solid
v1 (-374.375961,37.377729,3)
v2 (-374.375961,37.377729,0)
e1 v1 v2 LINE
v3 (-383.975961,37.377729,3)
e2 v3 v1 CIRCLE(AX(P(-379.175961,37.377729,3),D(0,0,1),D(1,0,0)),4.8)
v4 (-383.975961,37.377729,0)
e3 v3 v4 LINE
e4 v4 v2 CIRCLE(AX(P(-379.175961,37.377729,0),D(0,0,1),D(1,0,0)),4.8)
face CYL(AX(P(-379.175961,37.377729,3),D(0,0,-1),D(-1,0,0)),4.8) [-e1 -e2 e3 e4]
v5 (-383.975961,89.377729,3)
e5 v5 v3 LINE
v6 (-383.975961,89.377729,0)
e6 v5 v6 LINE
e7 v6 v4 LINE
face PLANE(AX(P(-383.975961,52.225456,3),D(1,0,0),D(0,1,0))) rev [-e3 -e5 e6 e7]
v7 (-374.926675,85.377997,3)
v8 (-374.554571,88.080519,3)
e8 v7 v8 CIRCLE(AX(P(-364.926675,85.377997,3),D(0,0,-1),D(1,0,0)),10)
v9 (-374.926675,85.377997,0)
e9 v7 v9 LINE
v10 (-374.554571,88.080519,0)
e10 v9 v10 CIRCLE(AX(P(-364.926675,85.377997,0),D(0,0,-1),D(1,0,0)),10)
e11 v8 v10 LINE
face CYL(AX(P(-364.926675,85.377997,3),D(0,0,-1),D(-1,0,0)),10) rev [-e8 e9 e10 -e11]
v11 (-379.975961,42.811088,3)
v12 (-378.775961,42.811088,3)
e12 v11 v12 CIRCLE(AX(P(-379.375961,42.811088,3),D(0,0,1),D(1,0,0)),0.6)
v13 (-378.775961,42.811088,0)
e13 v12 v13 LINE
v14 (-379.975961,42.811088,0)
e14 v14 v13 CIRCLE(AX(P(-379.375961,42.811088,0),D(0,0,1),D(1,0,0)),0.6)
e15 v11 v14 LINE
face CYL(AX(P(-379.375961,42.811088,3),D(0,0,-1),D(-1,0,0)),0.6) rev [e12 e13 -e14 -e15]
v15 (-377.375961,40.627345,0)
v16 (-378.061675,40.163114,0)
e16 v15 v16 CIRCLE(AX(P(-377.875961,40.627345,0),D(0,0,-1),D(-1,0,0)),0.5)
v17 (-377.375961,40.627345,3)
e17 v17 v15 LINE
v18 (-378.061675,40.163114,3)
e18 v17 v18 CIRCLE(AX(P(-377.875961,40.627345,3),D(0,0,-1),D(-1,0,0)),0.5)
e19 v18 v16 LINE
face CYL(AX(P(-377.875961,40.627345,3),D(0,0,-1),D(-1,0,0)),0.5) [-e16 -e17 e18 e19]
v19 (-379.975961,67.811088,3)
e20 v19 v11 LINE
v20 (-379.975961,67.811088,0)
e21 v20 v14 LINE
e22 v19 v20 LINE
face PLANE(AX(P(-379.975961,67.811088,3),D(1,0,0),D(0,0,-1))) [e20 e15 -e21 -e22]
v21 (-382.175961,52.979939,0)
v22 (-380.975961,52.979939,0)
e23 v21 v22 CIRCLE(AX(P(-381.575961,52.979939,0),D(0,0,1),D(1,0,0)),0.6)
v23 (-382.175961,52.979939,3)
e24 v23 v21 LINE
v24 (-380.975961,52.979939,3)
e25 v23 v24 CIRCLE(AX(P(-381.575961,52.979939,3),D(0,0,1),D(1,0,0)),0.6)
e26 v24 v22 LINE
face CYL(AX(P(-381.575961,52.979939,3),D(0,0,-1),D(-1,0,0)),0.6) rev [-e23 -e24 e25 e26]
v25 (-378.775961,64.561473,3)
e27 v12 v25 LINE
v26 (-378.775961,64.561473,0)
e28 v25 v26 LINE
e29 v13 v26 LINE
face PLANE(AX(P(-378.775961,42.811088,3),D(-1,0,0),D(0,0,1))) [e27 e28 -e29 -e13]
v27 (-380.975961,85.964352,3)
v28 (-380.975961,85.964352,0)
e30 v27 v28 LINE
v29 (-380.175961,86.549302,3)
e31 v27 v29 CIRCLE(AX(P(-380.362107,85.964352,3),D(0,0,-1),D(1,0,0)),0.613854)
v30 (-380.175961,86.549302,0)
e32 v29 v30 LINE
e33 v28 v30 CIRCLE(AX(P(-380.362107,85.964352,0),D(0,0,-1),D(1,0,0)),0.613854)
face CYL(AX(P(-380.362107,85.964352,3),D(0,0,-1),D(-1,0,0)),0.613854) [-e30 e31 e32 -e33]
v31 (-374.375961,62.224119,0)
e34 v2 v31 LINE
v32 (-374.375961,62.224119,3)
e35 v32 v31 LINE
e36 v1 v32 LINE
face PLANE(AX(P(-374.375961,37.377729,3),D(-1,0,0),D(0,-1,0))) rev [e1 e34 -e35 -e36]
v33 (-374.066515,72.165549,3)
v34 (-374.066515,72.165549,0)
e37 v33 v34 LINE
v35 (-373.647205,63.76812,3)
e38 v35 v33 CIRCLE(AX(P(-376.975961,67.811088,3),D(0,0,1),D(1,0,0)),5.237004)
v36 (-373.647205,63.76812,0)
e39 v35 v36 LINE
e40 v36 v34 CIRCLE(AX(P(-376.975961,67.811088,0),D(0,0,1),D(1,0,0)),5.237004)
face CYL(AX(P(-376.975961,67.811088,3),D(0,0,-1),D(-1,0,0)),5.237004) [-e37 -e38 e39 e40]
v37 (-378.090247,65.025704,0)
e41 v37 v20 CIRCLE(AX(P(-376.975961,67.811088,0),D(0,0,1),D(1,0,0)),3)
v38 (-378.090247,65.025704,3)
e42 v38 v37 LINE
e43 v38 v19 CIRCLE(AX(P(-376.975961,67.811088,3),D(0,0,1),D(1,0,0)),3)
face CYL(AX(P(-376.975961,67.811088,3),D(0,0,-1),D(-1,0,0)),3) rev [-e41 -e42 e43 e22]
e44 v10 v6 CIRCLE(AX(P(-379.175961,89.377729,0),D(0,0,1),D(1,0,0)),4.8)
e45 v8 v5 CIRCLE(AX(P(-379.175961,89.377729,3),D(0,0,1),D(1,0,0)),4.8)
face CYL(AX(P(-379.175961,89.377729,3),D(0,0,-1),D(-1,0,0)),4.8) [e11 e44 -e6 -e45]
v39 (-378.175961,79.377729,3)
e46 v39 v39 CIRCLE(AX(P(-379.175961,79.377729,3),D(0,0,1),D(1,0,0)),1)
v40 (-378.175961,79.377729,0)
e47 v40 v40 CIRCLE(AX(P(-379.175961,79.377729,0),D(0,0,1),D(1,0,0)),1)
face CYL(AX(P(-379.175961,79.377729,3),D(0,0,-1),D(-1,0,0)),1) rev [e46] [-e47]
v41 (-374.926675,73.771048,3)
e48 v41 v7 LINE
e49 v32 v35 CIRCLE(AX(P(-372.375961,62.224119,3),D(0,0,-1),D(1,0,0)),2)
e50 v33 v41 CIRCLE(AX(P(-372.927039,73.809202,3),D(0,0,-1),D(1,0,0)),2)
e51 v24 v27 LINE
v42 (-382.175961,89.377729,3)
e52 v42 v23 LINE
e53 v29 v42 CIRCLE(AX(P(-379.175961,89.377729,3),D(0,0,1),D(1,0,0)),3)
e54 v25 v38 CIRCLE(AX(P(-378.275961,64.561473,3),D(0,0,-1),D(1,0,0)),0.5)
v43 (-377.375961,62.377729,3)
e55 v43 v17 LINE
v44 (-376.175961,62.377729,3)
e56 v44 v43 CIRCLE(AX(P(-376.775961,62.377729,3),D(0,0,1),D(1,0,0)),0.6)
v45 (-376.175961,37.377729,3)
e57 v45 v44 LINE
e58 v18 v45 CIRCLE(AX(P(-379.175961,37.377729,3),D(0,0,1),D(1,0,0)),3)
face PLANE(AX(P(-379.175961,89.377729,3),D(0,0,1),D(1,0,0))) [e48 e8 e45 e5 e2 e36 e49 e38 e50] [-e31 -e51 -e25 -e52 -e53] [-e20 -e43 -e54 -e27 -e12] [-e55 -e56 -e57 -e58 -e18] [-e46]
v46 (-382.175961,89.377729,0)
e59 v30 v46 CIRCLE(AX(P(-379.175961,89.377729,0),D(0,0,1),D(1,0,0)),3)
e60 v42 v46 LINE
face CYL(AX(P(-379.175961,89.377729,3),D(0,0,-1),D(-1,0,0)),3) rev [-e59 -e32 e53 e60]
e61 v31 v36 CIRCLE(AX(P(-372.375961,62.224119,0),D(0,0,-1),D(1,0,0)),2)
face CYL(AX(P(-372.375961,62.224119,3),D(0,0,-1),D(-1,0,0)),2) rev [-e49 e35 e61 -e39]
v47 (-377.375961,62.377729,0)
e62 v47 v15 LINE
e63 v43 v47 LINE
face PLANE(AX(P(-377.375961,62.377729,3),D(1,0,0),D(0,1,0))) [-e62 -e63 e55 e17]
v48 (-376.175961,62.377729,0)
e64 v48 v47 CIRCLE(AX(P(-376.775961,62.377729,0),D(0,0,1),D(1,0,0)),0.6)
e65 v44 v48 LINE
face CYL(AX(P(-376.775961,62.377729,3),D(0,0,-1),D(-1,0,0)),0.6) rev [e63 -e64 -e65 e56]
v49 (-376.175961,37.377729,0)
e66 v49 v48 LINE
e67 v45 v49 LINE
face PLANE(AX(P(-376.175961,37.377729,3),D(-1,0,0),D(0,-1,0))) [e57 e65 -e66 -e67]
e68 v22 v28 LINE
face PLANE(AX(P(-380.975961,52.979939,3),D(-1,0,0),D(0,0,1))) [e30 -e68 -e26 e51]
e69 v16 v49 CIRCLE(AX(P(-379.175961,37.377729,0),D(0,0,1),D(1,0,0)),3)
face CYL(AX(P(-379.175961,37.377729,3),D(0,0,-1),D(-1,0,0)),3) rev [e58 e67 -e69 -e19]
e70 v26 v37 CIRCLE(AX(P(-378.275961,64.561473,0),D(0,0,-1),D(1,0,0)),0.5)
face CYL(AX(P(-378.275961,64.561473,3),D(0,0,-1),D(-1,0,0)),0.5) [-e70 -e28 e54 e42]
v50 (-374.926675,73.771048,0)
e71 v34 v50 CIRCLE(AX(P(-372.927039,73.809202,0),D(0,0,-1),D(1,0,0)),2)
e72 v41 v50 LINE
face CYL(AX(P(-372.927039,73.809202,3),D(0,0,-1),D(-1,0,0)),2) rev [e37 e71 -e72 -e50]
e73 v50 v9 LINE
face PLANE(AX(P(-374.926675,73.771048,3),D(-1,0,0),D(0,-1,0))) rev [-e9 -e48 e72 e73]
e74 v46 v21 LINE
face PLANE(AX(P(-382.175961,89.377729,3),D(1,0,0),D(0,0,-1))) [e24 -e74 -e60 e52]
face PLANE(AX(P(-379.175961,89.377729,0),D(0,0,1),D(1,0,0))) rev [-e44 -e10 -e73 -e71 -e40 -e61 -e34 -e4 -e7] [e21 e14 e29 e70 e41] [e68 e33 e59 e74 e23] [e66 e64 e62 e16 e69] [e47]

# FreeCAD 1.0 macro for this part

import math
import FreeCAD as App
import Part
import Sketcher

doc = App.newDocument("Part")
params = doc.addObject("Spreadsheet::Sheet", "Params")
for row, (alias, value) in enumerate([
    ("sketch1_diameter", "2 mm"),
    ("sketch1_radius", "10 mm"),
    ("sketch1_radius2", "2 mm"),
    ("sketch1_radius3", "3 mm"),
    ("sketch1_radius4", "4.8 mm"),
    ("pad1_length", "3 mm"),
], start=1):
    params.set(f"A{row}", alias)
    params.set(f"B{row}", "=" + value)
    params.setAlias(f"B{row}", alias)

body = doc.addObject("PartDesign::Body", "Body")

# Sketch on XY plane
sketch1 = doc.addObject("Sketcher::SketchObject", "Sketch")
body.addObject(sketch1)
sketch1.AttachmentSupport = (doc.XY_Plane, [""])
sketch1.MapMode = "FlatFace"
sketch1.addGeometry([
    Part.LineSegment(App.Vector(-374.93, 73.77, 0), App.Vector(-374.93, 85.38, 0)),  # 0
    Part.ArcOfCircle(Part.Circle(App.Vector(-364.93, 85.38, 0), App.Vector(0, 0, 1), 10), math.radians(164.32), math.radians(180)),  # 1
    Part.ArcOfCircle(Part.Circle(App.Vector(-379.18, 89.38, 0), App.Vector(0, 0, 1), 4.8), math.radians(-16), math.radians(180)),  # 2
    Part.LineSegment(App.Vector(-383.98, 89.38, 0), App.Vector(-383.98, 37.38, 0)),  # 3
    Part.ArcOfCircle(Part.Circle(App.Vector(-379.18, 37.38, 0), App.Vector(0, 0, 1), 4.8), math.radians(180), math.radians(360)),  # 4
    Part.LineSegment(App.Vector(-374.38, 37.38, 0), App.Vector(-374.38, 62.22, 0)),  # 5
    Part.ArcOfCircle(Part.Circle(App.Vector(-372.38, 62.22, 0), App.Vector(0, 0, 1), 2), math.radians(129), math.radians(180)),  # 6
    Part.ArcOfCircle(Part.Circle(App.Vector(-376.98, 67.81, 0), App.Vector(0, 0, 1), 5.24), math.radians(-51), math.radians(56)),  # 7
    Part.ArcOfCircle(Part.Circle(App.Vector(-372.93, 73.81, 0), App.Vector(0, 0, 1), 2), math.radians(-179), math.radians(-125)),  # 8
    Part.LineSegment(App.Vector(-376.18, 62.38, 0), App.Vector(-376.18, 37.38, 0)),  # 9
    Part.ArcOfCircle(Part.Circle(App.Vector(-379.18, 37.38, 0), App.Vector(0, 0, 1), 3), math.radians(68), math.radians(360)),  # 10
    Part.ArcOfCircle(Part.Circle(App.Vector(-377.88, 40.63, 0), App.Vector(0, 0, 1), 0.5), math.radians(-112), math.radians(0)),  # 11
    Part.LineSegment(App.Vector(-377.38, 40.63, 0), App.Vector(-377.38, 62.38, 0)),  # 12
    Part.ArcOfCircle(Part.Circle(App.Vector(-376.78, 62.38, 0), App.Vector(0, 0, 1), 0.6), math.radians(0), math.radians(180)),  # 13
    Part.LineSegment(App.Vector(-378.78, 64.56, 0), App.Vector(-378.78, 42.81, 0)),  # 14
    Part.ArcOfCircle(Part.Circle(App.Vector(-379.38, 42.81, 0), App.Vector(0, 0, 1), 0.6), math.radians(180), math.radians(360)),  # 15
    Part.LineSegment(App.Vector(-379.98, 42.81, 0), App.Vector(-379.98, 67.81, 0)),  # 16
    Part.ArcOfCircle(Part.Circle(App.Vector(-376.98, 67.81, 0), App.Vector(0, 0, 1), 3), math.radians(-112), math.radians(180)),  # 17
    Part.ArcOfCircle(Part.Circle(App.Vector(-378.28, 64.56, 0), App.Vector(0, 0, 1), 0.5), math.radians(68), math.radians(180)),  # 18
    Part.LineSegment(App.Vector(-382.18, 52.98, 0), App.Vector(-382.18, 89.38, 0)),  # 19
    Part.ArcOfCircle(Part.Circle(App.Vector(-379.18, 89.38, 0), App.Vector(0, 0, 1), 3), math.radians(-109), math.radians(180)),  # 20
    Part.ArcOfCircle(Part.Circle(App.Vector(-380.36, 85.96, 0), App.Vector(0, 0, 1), 0.61), math.radians(72), math.radians(180)),  # 21
    Part.LineSegment(App.Vector(-380.98, 85.96, 0), App.Vector(-380.98, 52.98, 0)),  # 22
    Part.ArcOfCircle(Part.Circle(App.Vector(-381.58, 52.98, 0), App.Vector(0, 0, 1), 0.6), math.radians(180), math.radians(360)),  # 23
    Part.Circle(App.Vector(-379.18, 79.38, 0), App.Vector(0, 0, 1), 1),  # 24
], False)
sketch1.addConstraint([
    Sketcher.Constraint("Tangent", 0, 2, 1, 2),
    Sketcher.Constraint("Tangent", 1, 1, 2, 1),
    Sketcher.Constraint("Tangent", 2, 2, 3, 1),
    Sketcher.Constraint("Tangent", 3, 2, 4, 1),
    Sketcher.Constraint("Tangent", 4, 2, 5, 1),
    Sketcher.Constraint("Tangent", 5, 2, 6, 2),
    Sketcher.Constraint("Tangent", 6, 1, 7, 1),
    Sketcher.Constraint("Coincident", 7, 2, 8, 2),
    Sketcher.Constraint("Coincident", 8, 1, 0, 1),
    Sketcher.Constraint("Tangent", 9, 2, 10, 2),
    Sketcher.Constraint("Tangent", 10, 1, 11, 1),
    Sketcher.Constraint("Tangent", 11, 2, 12, 1),
    Sketcher.Constraint("Tangent", 12, 2, 13, 2),
    Sketcher.Constraint("Tangent", 13, 1, 9, 1),
    Sketcher.Constraint("Tangent", 14, 2, 15, 2),
    Sketcher.Constraint("Tangent", 15, 1, 16, 1),
    Sketcher.Constraint("Tangent", 16, 2, 17, 2),
    Sketcher.Constraint("Tangent", 17, 1, 18, 1),
    Sketcher.Constraint("Tangent", 18, 2, 14, 1),
    Sketcher.Constraint("Tangent", 19, 2, 20, 2),
    Sketcher.Constraint("Coincident", 20, 1, 21, 1),
    Sketcher.Constraint("Tangent", 21, 2, 22, 1),
    Sketcher.Constraint("Tangent", 22, 2, 23, 2),
    Sketcher.Constraint("Tangent", 23, 1, 19, 1),
    Sketcher.Constraint("Vertical", 0),
    Sketcher.Constraint("Vertical", 3),
    Sketcher.Constraint("Vertical", 5),
    Sketcher.Constraint("Vertical", 9),
    Sketcher.Constraint("Vertical", 12),
    Sketcher.Constraint("Vertical", 14),
    Sketcher.Constraint("Vertical", 16),
    Sketcher.Constraint("Vertical", 19),
    Sketcher.Constraint("Vertical", 22),
    Sketcher.Constraint("Coincident", 10, 3, 4, 3),
    Sketcher.Constraint("Coincident", 17, 3, 7, 3),
    Sketcher.Constraint("Coincident", 20, 3, 2, 3),
    Sketcher.Constraint("Equal", 2, 4),
    Sketcher.Constraint("Equal", 6, 8),
    Sketcher.Constraint("Equal", 13, 15),
    Sketcher.Constraint("Equal", 10, 17),
    Sketcher.Constraint("Equal", 11, 18),
    Sketcher.Constraint("Equal", 17, 20),
    Sketcher.Constraint("Equal", 15, 23),
    Sketcher.Constraint("Vertical", 20, 3, 24, 3),
    Sketcher.Constraint("Equal", 12, 14),
    Sketcher.Constraint("Diameter", 24, 2.0),
    Sketcher.Constraint("Radius", 1, 10.0),
    Sketcher.Constraint("Radius", 6, 2.0),
    Sketcher.Constraint("Radius", 10, 3.0),
    Sketcher.Constraint("Radius", 2, 4.8),
    Sketcher.Constraint("Radius", 11, 0.5),
    Sketcher.Constraint("Radius", 13, 0.6),
    Sketcher.Constraint("DistanceY", 3, 2, 3, 1, 52.0),
    Sketcher.Constraint("DistanceY", 9, 2, 9, 1, 25.0),
    Sketcher.Constraint("DistanceX", 15, 3, 6, 3, 7.0),
    Sketcher.Constraint("DistanceY", 24, 3, 2, 3, 10.0),
    Sketcher.Constraint("DistanceX", 20, 1, 2, 3, 1.0),
    Sketcher.Constraint("Radius", 7, 5.237004),
    Sketcher.Constraint("Radius", 21, 0.613854),
    Sketcher.Constraint("DistanceY", 0, 1, 0, 2, 11.606949),
    Sketcher.Constraint("DistanceY", 5, 1, 5, 2, 24.84639),
    Sketcher.Constraint("DistanceY", 19, 1, 19, 2, 36.39779),
    Sketcher.Constraint("DistanceY", 7, 2, 8, 1, 1.605499),
    Sketcher.Constraint("DistanceX", 2, 3, -1, 1, 379.175961),
    Sketcher.Constraint("DistanceY", -1, 1, 2, 3, 89.377729),
    Sketcher.Constraint("DistanceX", 8, 3, -1, 1, 372.927039),
])
sketch1.setExpression("Constraints[45]", "Params.sketch1_diameter")
sketch1.setExpression("Constraints[46]", "Params.sketch1_radius")
sketch1.setExpression("Constraints[47]", "Params.sketch1_radius2")
sketch1.setExpression("Constraints[48]", "Params.sketch1_radius3")
sketch1.setExpression("Constraints[49]", "Params.sketch1_radius4")
pad1 = doc.addObject("PartDesign::Pad", "Pad")
body.addObject(pad1)
pad1.Profile = sketch1
pad1.setExpression("Length", "Params.pad1_length")

doc.recompute()
